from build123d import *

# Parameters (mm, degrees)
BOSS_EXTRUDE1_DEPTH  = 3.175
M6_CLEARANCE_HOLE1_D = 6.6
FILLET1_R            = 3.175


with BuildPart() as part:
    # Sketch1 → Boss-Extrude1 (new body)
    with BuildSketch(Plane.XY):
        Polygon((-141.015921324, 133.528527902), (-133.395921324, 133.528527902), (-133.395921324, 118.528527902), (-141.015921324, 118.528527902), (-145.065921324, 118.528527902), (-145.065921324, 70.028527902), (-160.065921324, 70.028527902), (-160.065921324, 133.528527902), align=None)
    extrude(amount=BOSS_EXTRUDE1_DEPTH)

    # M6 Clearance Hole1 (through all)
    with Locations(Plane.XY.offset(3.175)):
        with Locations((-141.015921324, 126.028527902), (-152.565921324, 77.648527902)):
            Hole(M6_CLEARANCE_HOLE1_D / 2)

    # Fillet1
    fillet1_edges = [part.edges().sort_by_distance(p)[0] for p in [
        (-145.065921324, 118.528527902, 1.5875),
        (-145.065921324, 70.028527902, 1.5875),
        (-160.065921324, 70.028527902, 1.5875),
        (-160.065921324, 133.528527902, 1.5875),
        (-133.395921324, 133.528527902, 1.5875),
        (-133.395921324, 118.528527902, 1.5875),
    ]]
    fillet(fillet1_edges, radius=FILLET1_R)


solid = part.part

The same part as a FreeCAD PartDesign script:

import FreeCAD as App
import Part
import Sketcher
from FreeCAD import Vector


def edges_at(feature, points):
    """Names of the edges that pass closest to the given points."""
    edges = feature.Shape.Edges
    near = lambda p: min(range(len(edges)), key=lambda i: edges[i].distToShape(Part.Vertex(*p))[0])
    return sorted({f"Edge{near(p) + 1}" for p in points})

doc = App.newDocument("Part")
body = doc.addObject("PartDesign::Body", "Body")

# Sketch on XY plane
sketch1 = body.newObject("Sketcher::SketchObject", "Sketch")
sketch1.AttachmentSupport = (doc.getObject("XY_Plane"), [""])
sketch1.MapMode = "FlatFace"
sketch1.addGeometry([
    Part.LineSegment(Vector(-133.395921, 133.528528, 0), Vector(-160.065921, 133.528528, 0)),  # 0
    Part.LineSegment(Vector(-160.065921, 133.528528, 0), Vector(-160.065921, 70.028528, 0)),  # 1
    Part.LineSegment(Vector(-160.065921, 70.028528, 0), Vector(-145.065921, 70.028528, 0)),  # 2
    Part.LineSegment(Vector(-145.065921, 70.028528, 0), Vector(-145.065921, 118.528528, 0)),  # 3
    Part.LineSegment(Vector(-145.065921, 118.528528, 0), Vector(-133.395921, 118.528528, 0)),  # 4
    Part.LineSegment(Vector(-133.395921, 118.528528, 0), Vector(-133.395921, 133.528528, 0)),  # 5
], False)
sketch1.addConstraint([
    Sketcher.Constraint("Coincident", 0, 2, 1, 1),
    Sketcher.Constraint("Coincident", 1, 2, 2, 1),
    Sketcher.Constraint("Coincident", 2, 2, 3, 1),
    Sketcher.Constraint("Coincident", 3, 2, 4, 1),
    Sketcher.Constraint("Coincident", 4, 2, 5, 1),
    Sketcher.Constraint("Coincident", 5, 2, 0, 1),
    Sketcher.Constraint("Horizontal", 0),
    Sketcher.Constraint("Vertical", 1),
    Sketcher.Constraint("Horizontal", 2),
    Sketcher.Constraint("Vertical", 3),
    Sketcher.Constraint("Horizontal", 4),
    Sketcher.Constraint("Vertical", 5),
    Sketcher.Constraint("Equal", 2, 5),
    Sketcher.Constraint("DistanceX", 2, 1, 2, 2, 15.0),
    Sketcher.Constraint("DistanceY", 1, 2, 1, 1, 63.5),
    Sketcher.Constraint("DistanceX", 0, 2, 0, 1, 26.67),
    Sketcher.Constraint("DistanceX", 0, 2, -1, 1, 160.065921),
    Sketcher.Constraint("DistanceY", -1, 1, 0, 2, 133.528528),
])
pad1 = body.newObject("PartDesign::Pad", "Pad")
pad1.Profile = sketch1
pad1.Length = 3.175

# Sketch on XY plane
sketch2 = body.newObject("Sketcher::SketchObject", "Sketch001")
sketch2.AttachmentSupport = (doc.getObject("XY_Plane"), [""])
sketch2.MapMode = "FlatFace"
sketch2.AttachmentOffset = App.Placement(Vector(0, 0, 3.175), App.Rotation())
sketch2.addGeometry([
    Part.Circle(Vector(-141.015921, 126.028528, 0), Vector(0, 0, 1), 3.3),
    Part.Circle(Vector(-152.565921, 77.648528, 0), Vector(0, 0, 1), 3.3),
], False)
sketch2.addConstraint([
    Sketcher.Constraint("Equal", 0, 1),
    Sketcher.Constraint("Diameter", 0, 6.6),
    Sketcher.Constraint("DistanceX", 1, 3, 0, 3, 11.55),
    Sketcher.Constraint("DistanceY", 1, 3, 0, 3, 48.38),
    Sketcher.Constraint("DistanceX", 0, 3, -1, 1, 141.015921),
    Sketcher.Constraint("DistanceY", -1, 1, 0, 3, 126.028528),
])
doc.recompute()
hole = body.newObject("PartDesign::Hole", "Hole")
hole.Profile = sketch2
hole.ThreadType = "None"
hole.Diameter = 6.6
hole.DepthType = "ThroughAll"
doc.recompute()

fillet = body.newObject("PartDesign::Fillet", "Fillet")
fillet.Base = (hole, edges_at(hole, [
    (-145.066, 118.529, 1.587),
    (-145.066, 70.029, 1.587),
    (-160.066, 70.029, 1.587),
    (-160.066, 133.529, 1.587),
    (-133.396, 133.529, 1.587),
    (-133.396, 118.529, 1.587),
]))
fillet.Radius = 3.175

doc.recompute()
